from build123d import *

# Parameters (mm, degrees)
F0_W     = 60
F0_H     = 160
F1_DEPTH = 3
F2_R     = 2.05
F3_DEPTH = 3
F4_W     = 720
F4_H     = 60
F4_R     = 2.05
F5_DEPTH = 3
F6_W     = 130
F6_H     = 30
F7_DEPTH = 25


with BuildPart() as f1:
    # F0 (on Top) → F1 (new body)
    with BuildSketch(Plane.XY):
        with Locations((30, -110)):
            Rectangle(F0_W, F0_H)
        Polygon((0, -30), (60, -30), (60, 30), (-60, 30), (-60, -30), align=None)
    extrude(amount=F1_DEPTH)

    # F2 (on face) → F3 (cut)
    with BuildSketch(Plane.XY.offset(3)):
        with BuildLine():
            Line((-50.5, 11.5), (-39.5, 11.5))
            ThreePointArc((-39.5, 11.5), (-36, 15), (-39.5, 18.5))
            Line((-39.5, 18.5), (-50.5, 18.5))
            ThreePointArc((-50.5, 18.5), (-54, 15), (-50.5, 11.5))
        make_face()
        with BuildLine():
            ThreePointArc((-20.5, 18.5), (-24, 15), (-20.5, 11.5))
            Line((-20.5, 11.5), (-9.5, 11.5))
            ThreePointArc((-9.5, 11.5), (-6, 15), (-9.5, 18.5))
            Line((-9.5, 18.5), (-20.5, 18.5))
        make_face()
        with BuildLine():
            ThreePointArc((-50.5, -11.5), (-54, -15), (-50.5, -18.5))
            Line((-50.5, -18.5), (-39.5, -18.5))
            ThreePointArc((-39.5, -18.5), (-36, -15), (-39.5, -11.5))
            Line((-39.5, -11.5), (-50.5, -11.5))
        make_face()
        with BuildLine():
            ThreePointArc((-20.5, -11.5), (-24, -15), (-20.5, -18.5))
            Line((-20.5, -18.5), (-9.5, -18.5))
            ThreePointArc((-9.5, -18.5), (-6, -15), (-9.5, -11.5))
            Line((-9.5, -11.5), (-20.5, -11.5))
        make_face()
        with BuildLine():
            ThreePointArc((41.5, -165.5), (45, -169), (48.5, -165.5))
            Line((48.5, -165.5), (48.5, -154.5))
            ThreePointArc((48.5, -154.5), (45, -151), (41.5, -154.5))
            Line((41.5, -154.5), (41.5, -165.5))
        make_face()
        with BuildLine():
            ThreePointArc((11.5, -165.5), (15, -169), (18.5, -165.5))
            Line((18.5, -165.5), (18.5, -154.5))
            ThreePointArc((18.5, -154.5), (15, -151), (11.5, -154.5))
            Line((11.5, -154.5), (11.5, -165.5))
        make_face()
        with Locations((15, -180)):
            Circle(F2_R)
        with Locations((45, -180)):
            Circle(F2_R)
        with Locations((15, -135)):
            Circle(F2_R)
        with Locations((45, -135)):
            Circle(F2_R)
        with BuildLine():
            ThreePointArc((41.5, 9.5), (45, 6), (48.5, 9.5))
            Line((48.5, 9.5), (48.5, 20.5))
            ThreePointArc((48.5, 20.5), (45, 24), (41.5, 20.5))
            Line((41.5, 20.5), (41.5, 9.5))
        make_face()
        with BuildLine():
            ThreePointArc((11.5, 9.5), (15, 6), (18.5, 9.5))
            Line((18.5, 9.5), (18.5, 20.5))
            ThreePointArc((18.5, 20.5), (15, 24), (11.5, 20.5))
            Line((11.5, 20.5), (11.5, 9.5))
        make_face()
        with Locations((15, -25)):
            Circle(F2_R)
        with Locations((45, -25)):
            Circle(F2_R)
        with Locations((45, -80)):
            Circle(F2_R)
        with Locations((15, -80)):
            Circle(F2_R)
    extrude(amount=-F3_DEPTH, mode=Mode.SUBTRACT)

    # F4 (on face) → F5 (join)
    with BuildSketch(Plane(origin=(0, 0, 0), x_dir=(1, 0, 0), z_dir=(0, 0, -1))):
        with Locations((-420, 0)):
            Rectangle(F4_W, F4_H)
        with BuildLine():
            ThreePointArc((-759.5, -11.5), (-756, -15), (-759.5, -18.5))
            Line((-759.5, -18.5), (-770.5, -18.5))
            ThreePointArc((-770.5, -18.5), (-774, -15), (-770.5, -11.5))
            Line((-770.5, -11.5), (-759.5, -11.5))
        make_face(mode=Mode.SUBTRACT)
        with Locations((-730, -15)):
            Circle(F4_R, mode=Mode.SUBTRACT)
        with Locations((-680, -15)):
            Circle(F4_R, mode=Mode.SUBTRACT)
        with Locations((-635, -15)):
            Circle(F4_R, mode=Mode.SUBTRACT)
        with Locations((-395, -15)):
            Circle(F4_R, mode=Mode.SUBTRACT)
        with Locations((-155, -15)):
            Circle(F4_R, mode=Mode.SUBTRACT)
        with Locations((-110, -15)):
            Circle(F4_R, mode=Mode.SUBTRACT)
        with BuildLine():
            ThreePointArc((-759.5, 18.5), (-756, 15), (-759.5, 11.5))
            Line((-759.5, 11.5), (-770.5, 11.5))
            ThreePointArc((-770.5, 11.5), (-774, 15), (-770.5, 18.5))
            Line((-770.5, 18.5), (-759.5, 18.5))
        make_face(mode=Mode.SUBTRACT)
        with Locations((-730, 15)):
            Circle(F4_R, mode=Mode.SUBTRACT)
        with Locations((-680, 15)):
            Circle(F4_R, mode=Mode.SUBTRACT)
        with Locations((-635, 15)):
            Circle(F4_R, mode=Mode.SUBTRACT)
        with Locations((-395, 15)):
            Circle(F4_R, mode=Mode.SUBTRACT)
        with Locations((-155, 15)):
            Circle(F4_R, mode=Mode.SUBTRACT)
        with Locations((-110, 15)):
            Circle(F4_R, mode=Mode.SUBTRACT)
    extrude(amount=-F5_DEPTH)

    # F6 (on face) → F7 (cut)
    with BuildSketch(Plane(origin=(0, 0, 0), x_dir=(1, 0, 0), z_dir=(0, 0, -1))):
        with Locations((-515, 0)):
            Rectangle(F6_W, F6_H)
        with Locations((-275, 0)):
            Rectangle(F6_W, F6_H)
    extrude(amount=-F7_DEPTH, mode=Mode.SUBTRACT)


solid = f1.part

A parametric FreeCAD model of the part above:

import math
import FreeCAD as App
import Part
import Sketcher
from FreeCAD import Vector

doc = App.newDocument("Part")
params = doc.addObject("Spreadsheet::Sheet", "Params")
for row, (alias, value) in enumerate([
    ("sketch1_width", "60 mm"),
    ("sketch1_height", "160 mm"),
    ("pad1_length", "3 mm"),
    ("sketch2_diameter", "4.1 mm"),
    ("sketch2_radius", "3.5 mm"),
    ("sketch2_width", "11 mm"),
    ("pocket1_length", "3 mm"),
    ("sketch3_diameter", "4.1 mm"),
    ("sketch3_radius", "3.5 mm"),
    ("sketch3_width", "720 mm"),
    ("sketch3_width2", "11 mm"),
    ("sketch3_height", "60 mm"),
    ("pad2_length", "3 mm"),
    ("sketch4_width", "130 mm"),
    ("sketch4_height", "30 mm"),
    ("pocket2_length", "25 mm"),
], start=1):
    params.set(f"A{row}", alias)
    params.set(f"B{row}", "=" + value)
    params.setAlias(f"B{row}", alias)

body = doc.addObject("PartDesign::Body", "Body")

sketch1 = doc.addObject("Sketcher::SketchObject", "Sketch")
body.addObject(sketch1)
sketch1.AttachmentSupport = (doc.XY_Plane, [""])
sketch1.MapMode = "FlatFace"
sketch1.addGeometry([
    Part.LineSegment(Vector(0, -30, 0), Vector(0, -190, 0)),
    Part.LineSegment(Vector(0, -190, 0), Vector(60, -190, 0)),
    Part.LineSegment(Vector(60, -190, 0), Vector(60, 30, 0)),
    Part.LineSegment(Vector(60, 30, 0), Vector(-60, 30, 0)),
    Part.LineSegment(Vector(-60, 30, 0), Vector(-60, -30, 0)),
    Part.LineSegment(Vector(-60, -30, 0), Vector(0, -30, 0)),
], False)
sketch1.addConstraint([
    Sketcher.Constraint("Coincident", 0, 2, 1, 1),
    Sketcher.Constraint("Coincident", 1, 2, 2, 1),
    Sketcher.Constraint("Coincident", 2, 2, 3, 1),
    Sketcher.Constraint("Coincident", 3, 2, 4, 1),
    Sketcher.Constraint("Coincident", 4, 2, 5, 1),
    Sketcher.Constraint("Coincident", 5, 2, 0, 1),
    Sketcher.Constraint("Vertical", 0),
    Sketcher.Constraint("Horizontal", 1),
    Sketcher.Constraint("Vertical", 2),
    Sketcher.Constraint("Horizontal", 3),
    Sketcher.Constraint("Vertical", 4),
    Sketcher.Constraint("Horizontal", 5),
    Sketcher.Constraint("Symmetric", 2, 2, 4, 2, -1, 1),
    Sketcher.Constraint("PointOnObject", 0, 2, -2),
    Sketcher.Constraint("Equal", 5, 4),
    Sketcher.Constraint("DistanceX", 1, 1, 1, 2, 60.0),
    Sketcher.Constraint("DistanceY", 0, 2, 0, 1, 160.0),
])
sketch1.setExpression("Constraints[15]", "Params.sketch1_width")
sketch1.setExpression("Constraints[16]", "Params.sketch1_height")
pad1 = doc.addObject("PartDesign::Pad", "Pad")
body.addObject(pad1)
pad1.Profile = sketch1
pad1.setExpression("Length", "Params.pad1_length")

sketch2 = doc.addObject("Sketcher::SketchObject", "Sketch001")
body.addObject(sketch2)
sketch2.AttachmentSupport = (doc.XY_Plane, [""])
sketch2.MapMode = "FlatFace"
sketch2.AttachmentOffset = App.Placement(Vector(0, 0, 3), App.Rotation())
sketch2.addGeometry([
    Part.LineSegment(Vector(-50.5, 11.5, 0), Vector(-39.5, 11.5, 0)),
    Part.ArcOfCircle(Part.Circle(Vector(-39.5, 15, 0), Vector(0, 0, 1), 3.5), math.radians(-90), math.radians(90)),
    Part.LineSegment(Vector(-39.5, 18.5, 0), Vector(-50.5, 18.5, 0)),
    Part.ArcOfCircle(Part.Circle(Vector(-50.5, 15, 0), Vector(0, 0, 1), 3.5), math.radians(90), math.radians(270)),
    Part.ArcOfCircle(Part.Circle(Vector(-20.5, 15, 0), Vector(0, 0, 1), 3.5), math.radians(90), math.radians(270)),
    Part.LineSegment(Vector(-20.5, 11.5, 0), Vector(-9.5, 11.5, 0)),
    Part.ArcOfCircle(Part.Circle(Vector(-9.5, 15, 0), Vector(0, 0, 1), 3.5), math.radians(-90), math.radians(90)),
    Part.LineSegment(Vector(-9.5, 18.5, 0), Vector(-20.5, 18.5, 0)),
    Part.ArcOfCircle(Part.Circle(Vector(-50.5, -15, 0), Vector(0, 0, 1), 3.5), math.radians(90), math.radians(270)),
    Part.LineSegment(Vector(-50.5, -18.5, 0), Vector(-39.5, -18.5, 0)),
    Part.ArcOfCircle(Part.Circle(Vector(-39.5, -15, 0), Vector(0, 0, 1), 3.5), math.radians(-90), math.radians(90)),
    Part.LineSegment(Vector(-39.5, -11.5, 0), Vector(-50.5, -11.5, 0)),
    Part.ArcOfCircle(Part.Circle(Vector(-20.5, -15, 0), Vector(0, 0, 1), 3.5), math.radians(90), math.radians(270)),
    Part.LineSegment(Vector(-20.5, -18.5, 0), Vector(-9.5, -18.5, 0)),
    Part.ArcOfCircle(Part.Circle(Vector(-9.5, -15, 0), Vector(0, 0, 1), 3.5), math.radians(-90), math.radians(90)),
    Part.LineSegment(Vector(-9.5, -11.5, 0), Vector(-20.5, -11.5, 0)),
    Part.ArcOfCircle(Part.Circle(Vector(45, -165.5, 0), Vector(0, 0, 1), 3.5), math.radians(180), math.radians(360)),
    Part.LineSegment(Vector(48.5, -165.5, 0), Vector(48.5, -154.5, 0)),
    Part.ArcOfCircle(Part.Circle(Vector(45, -154.5, 0), Vector(0, 0, 1), 3.5), math.radians(0), math.radians(180)),
    Part.LineSegment(Vector(41.5, -154.5, 0), Vector(41.5, -165.5, 0)),
    Part.ArcOfCircle(Part.Circle(Vector(15, -165.5, 0), Vector(0, 0, 1), 3.5), math.radians(180), math.radians(360)),
    Part.LineSegment(Vector(18.5, -165.5, 0), Vector(18.5, -154.5, 0)),
    Part.ArcOfCircle(Part.Circle(Vector(15, -154.5, 0), Vector(0, 0, 1), 3.5), math.radians(0), math.radians(180)),
    Part.LineSegment(Vector(11.5, -154.5, 0), Vector(11.5, -165.5, 0)),
    Part.Circle(Vector(15, -180, 0), Vector(0, 0, 1), 2),
    Part.Circle(Vector(45, -180, 0), Vector(0, 0, 1), 2),
    Part.Circle(Vector(15, -135, 0), Vector(0, 0, 1), 2),
    Part.Circle(Vector(45, -135, 0), Vector(0, 0, 1), 2),
    Part.ArcOfCircle(Part.Circle(Vector(45, 9.5, 0), Vector(0, 0, 1), 3.5), math.radians(180), math.radians(360)),
    Part.LineSegment(Vector(48.5, 9.5, 0), Vector(48.5, 20.5, 0)),
    Part.ArcOfCircle(Part.Circle(Vector(45, 20.5, 0), Vector(0, 0, 1), 3.5), math.radians(0), math.radians(180)),
    Part.LineSegment(Vector(41.5, 20.5, 0), Vector(41.5, 9.5, 0)),
    Part.ArcOfCircle(Part.Circle(Vector(15, 9.5, 0), Vector(0, 0, 1), 3.5), math.radians(180), math.radians(360)),
    Part.LineSegment(Vector(18.5, 9.5, 0), Vector(18.5, 20.5, 0)),
    Part.ArcOfCircle(Part.Circle(Vector(15, 20.5, 0), Vector(0, 0, 1), 3.5), math.radians(0), math.radians(180)),
    Part.LineSegment(Vector(11.5, 20.5, 0), Vector(11.5, 9.5, 0)),
    Part.Circle(Vector(15, -25, 0), Vector(0, 0, 1), 2),
    Part.Circle(Vector(45, -25, 0), Vector(0, 0, 1), 2),
    Part.Circle(Vector(45, -80, 0), Vector(0, 0, 1), 2),
    Part.Circle(Vector(15, -80, 0), Vector(0, 0, 1), 2),
], False)
sketch2.addConstraint([
    Sketcher.Constraint("Tangent", 0, 2, 1, 1),
    Sketcher.Constraint("Tangent", 1, 2, 2, 1),
    Sketcher.Constraint("Tangent", 2, 2, 3, 1),
    Sketcher.Constraint("Tangent", 3, 2, 0, 1),
    Sketcher.Constraint("Tangent", 4, 2, 5, 1),
    Sketcher.Constraint("Tangent", 5, 2, 6, 1),
    Sketcher.Constraint("Tangent", 6, 2, 7, 1),
    Sketcher.Constraint("Tangent", 7, 2, 4, 1),
    Sketcher.Constraint("Tangent", 8, 2, 9, 1),
    Sketcher.Constraint("Tangent", 9, 2, 10, 1),
    Sketcher.Constraint("Tangent", 10, 2, 11, 1),
    Sketcher.Constraint("Tangent", 11, 2, 8, 1),
    Sketcher.Constraint("Tangent", 12, 2, 13, 1),
    Sketcher.Constraint("Tangent", 13, 2, 14, 1),
    Sketcher.Constraint("Tangent", 14, 2, 15, 1),
    Sketcher.Constraint("Tangent", 15, 2, 12, 1),
    Sketcher.Constraint("Tangent", 16, 2, 17, 1),
    Sketcher.Constraint("Tangent", 17, 2, 18, 1),
    Sketcher.Constraint("Tangent", 18, 2, 19, 1),
    Sketcher.Constraint("Tangent", 19, 2, 16, 1),
    Sketcher.Constraint("Tangent", 20, 2, 21, 1),
    Sketcher.Constraint("Tangent", 21, 2, 22, 1),
    Sketcher.Constraint("Tangent", 22, 2, 23, 1),
    Sketcher.Constraint("Tangent", 23, 2, 20, 1),
    Sketcher.Constraint("Tangent", 28, 2, 29, 1),
    Sketcher.Constraint("Tangent", 29, 2, 30, 1),
    Sketcher.Constraint("Tangent", 30, 2, 31, 1),
    Sketcher.Constraint("Tangent", 31, 2, 28, 1),
    Sketcher.Constraint("Tangent", 32, 2, 33, 1),
    Sketcher.Constraint("Tangent", 33, 2, 34, 1),
    Sketcher.Constraint("Tangent", 34, 2, 35, 1),
    Sketcher.Constraint("Tangent", 35, 2, 32, 1),
    Sketcher.Constraint("Horizontal", 0),
    Sketcher.Constraint("Horizontal", 2),
    Sketcher.Constraint("Horizontal", 5),
    Sketcher.Constraint("Horizontal", 7),
    Sketcher.Constraint("Horizontal", 9),
    Sketcher.Constraint("Horizontal", 11),
    Sketcher.Constraint("Horizontal", 13),
    Sketcher.Constraint("Horizontal", 15),
    Sketcher.Constraint("Vertical", 17),
    Sketcher.Constraint("Vertical", 19),
    Sketcher.Constraint("Vertical", 21),
    Sketcher.Constraint("Vertical", 23),
    Sketcher.Constraint("Vertical", 29),
    Sketcher.Constraint("Vertical", 31),
    Sketcher.Constraint("Vertical", 33),
    Sketcher.Constraint("Vertical", 35),
    Sketcher.Constraint("Equal", 3, 4),
    Sketcher.Constraint("Equal", 6, 8),
    Sketcher.Constraint("Equal", 10, 12),
    Sketcher.Constraint("Equal", 14, 16),
    Sketcher.Constraint("Equal", 18, 20),
    Sketcher.Constraint("Equal", 24, 25),
    Sketcher.Constraint("Equal", 25, 26),
    Sketcher.Constraint("Equal", 26, 27),
    Sketcher.Constraint("Equal", 22, 28),
    Sketcher.Constraint("Equal", 30, 32),
    Sketcher.Constraint("Equal", 27, 36),
    Sketcher.Constraint("Equal", 36, 37),
    Sketcher.Constraint("Equal", 37, 38),
    Sketcher.Constraint("Equal", 38, 39),
    Sketcher.Constraint("Symmetric", 3, 3, 8, 3, -1),
    Sketcher.Constraint("Symmetric", 4, 3, 12, 3, -1),
    Sketcher.Constraint("Horizontal", 3, 3, 4, 3),
    Sketcher.Constraint("Horizontal", 16, 3, 20, 3),
    Sketcher.Constraint("Horizontal", 18, 3, 22, 3),
    Sketcher.Constraint("Horizontal", 24, 3, 25, 3),
    Sketcher.Constraint("Horizontal", 26, 3, 27, 3),
    Sketcher.Constraint("Horizontal", 28, 3, 32, 3),
    Sketcher.Constraint("Horizontal", 30, 3, 34, 3),
    Sketcher.Constraint("Horizontal", 36, 3, 37, 3),
    Sketcher.Constraint("Horizontal", 38, 3, 39, 3),
    Sketcher.Constraint("Vertical", 1, 3, 10, 3),
    Sketcher.Constraint("Vertical", 6, 3, 14, 3),
    Sketcher.Constraint("Vertical", 22, 3, 24, 3),
    Sketcher.Constraint("Vertical", 18, 3, 25, 3),
    Sketcher.Constraint("Vertical", 24, 3, 26, 3),
    Sketcher.Constraint("Vertical", 25, 3, 27, 3),
    Sketcher.Constraint("Vertical", 27, 3, 28, 3),
    Sketcher.Constraint("Vertical", 26, 3, 32, 3),
    Sketcher.Constraint("Vertical", 34, 3, 36, 3),
    Sketcher.Constraint("Vertical", 30, 3, 37, 3),
    Sketcher.Constraint("Vertical", 37, 3, 38, 3),
    Sketcher.Constraint("Vertical", 36, 3, 39, 3),
    Sketcher.Constraint("Equal", 2, 5),
    Sketcher.Constraint("Equal", 15, 17),
    Sketcher.Constraint("Equal", 23, 29),
    Sketcher.Constraint("Diameter", 24, 4.1),
    Sketcher.Constraint("Radius", 1, 3.5),
    Sketcher.Constraint("DistanceX", 0, 1, 0, 2, 11.0),
    Sketcher.Constraint("DistanceY", -1, 1, 1, 3, 15.0),
    Sketcher.Constraint("DistanceX", -1, 1, 16, 3, 45.0),
    Sketcher.Constraint("DistanceX", -1, 1, 20, 3, 15.0),
    Sketcher.Constraint("DistanceY", 24, 3, -1, 1, 180.0),
    Sketcher.Constraint("DistanceY", 26, 3, -1, 1, 135.0),
    Sketcher.Constraint("DistanceY", 36, 3, -1, 1, 25.0),
    Sketcher.Constraint("DistanceY", 38, 3, -1, 1, 80.0),
    Sketcher.Constraint("DistanceX", 1, 3, 4, 3, 19.0),
    Sketcher.Constraint("DistanceY", 32, 3, 5, 2, 2.0),
    Sketcher.Constraint("DistanceX", 6, 2, 34, 2, 21.0),
    Sketcher.Constraint("DistanceY", 16, 3, -1, 1, 165.5),
])
sketch2.setExpression("Constraints[88]", "Params.sketch2_diameter")
sketch2.setExpression("Constraints[89]", "Params.sketch2_radius")
sketch2.setExpression("Constraints[90]", "Params.sketch2_width")
pocket1 = doc.addObject("PartDesign::Pocket", "Pocket")
body.addObject(pocket1)
pocket1.Profile = sketch2
pocket1.setExpression("Length", "Params.pocket1_length")

sketch3 = doc.addObject("Sketcher::SketchObject", "Sketch002")
body.addObject(sketch3)
sketch3.AttachmentSupport = (doc.XY_Plane, [""])
sketch3.MapMode = "FlatFace"
sketch3.addGeometry([
    Part.LineSegment(Vector(-780, -30, 0), Vector(-780, 30, 0)),
    Part.LineSegment(Vector(-780, 30, 0), Vector(-60, 30, 0)),
    Part.LineSegment(Vector(-60, 30, 0), Vector(-60, -30, 0)),
    Part.LineSegment(Vector(-60, -30, 0), Vector(-780, -30, 0)),
    Part.LineSegment(Vector(-770.5, 11.5, 0), Vector(-759.5, 11.5, 0)),
    Part.ArcOfCircle(Part.Circle(Vector(-759.5, 15, 0), Vector(0, 0, 1), 3.5), math.radians(-90), math.radians(90)),
    Part.LineSegment(Vector(-759.5, 18.5, 0), Vector(-770.5, 18.5, 0)),
    Part.ArcOfCircle(Part.Circle(Vector(-770.5, 15, 0), Vector(0, 0, 1), 3.5), math.radians(90), math.radians(270)),
    Part.Circle(Vector(-730, 15, 0), Vector(0, 0, 1), 2),
    Part.Circle(Vector(-680, 15, 0), Vector(0, 0, 1), 2),
    Part.Circle(Vector(-635, 15, 0), Vector(0, 0, 1), 2),
    Part.Circle(Vector(-395, 15, 0), Vector(0, 0, 1), 2),
    Part.Circle(Vector(-155, 15, 0), Vector(0, 0, 1), 2),
    Part.Circle(Vector(-110, 15, 0), Vector(0, 0, 1), 2),
    Part.LineSegment(Vector(-770.5, -18.5, 0), Vector(-759.5, -18.5, 0)),
    Part.ArcOfCircle(Part.Circle(Vector(-759.5, -15, 0), Vector(0, 0, 1), 3.5), math.radians(-90), math.radians(90)),
    Part.LineSegment(Vector(-759.5, -11.5, 0), Vector(-770.5, -11.5, 0)),
    Part.ArcOfCircle(Part.Circle(Vector(-770.5, -15, 0), Vector(0, 0, 1), 3.5), math.radians(90), math.radians(270)),
    Part.Circle(Vector(-730, -15, 0), Vector(0, 0, 1), 2),
    Part.Circle(Vector(-680, -15, 0), Vector(0, 0, 1), 2),
    Part.Circle(Vector(-635, -15, 0), Vector(0, 0, 1), 2),
    Part.Circle(Vector(-395, -15, 0), Vector(0, 0, 1), 2),
    Part.Circle(Vector(-155, -15, 0), Vector(0, 0, 1), 2),
    Part.Circle(Vector(-110, -15, 0), Vector(0, 0, 1), 2),
], False)
sketch3.addConstraint([
    Sketcher.Constraint("Coincident", 0, 2, 1, 1),
    Sketcher.Constraint("Coincident", 1, 2, 2, 1),
    Sketcher.Constraint("Coincident", 2, 2, 3, 1),
    Sketcher.Constraint("Coincident", 3, 2, 0, 1),
    Sketcher.Constraint("Tangent", 4, 2, 5, 1),
    Sketcher.Constraint("Tangent", 5, 2, 6, 1),
    Sketcher.Constraint("Tangent", 6, 2, 7, 1),
    Sketcher.Constraint("Tangent", 7, 2, 4, 1),
    Sketcher.Constraint("Tangent", 14, 2, 15, 1),
    Sketcher.Constraint("Tangent", 15, 2, 16, 1),
    Sketcher.Constraint("Tangent", 16, 2, 17, 1),
    Sketcher.Constraint("Tangent", 17, 2, 14, 1),
    Sketcher.Constraint("Vertical", 0),
    Sketcher.Constraint("Horizontal", 1),
    Sketcher.Constraint("Vertical", 2),
    Sketcher.Constraint("Horizontal", 3),
    Sketcher.Constraint("Horizontal", 4),
    Sketcher.Constraint("Horizontal", 6),
    Sketcher.Constraint("Horizontal", 14),
    Sketcher.Constraint("Horizontal", 16),
    Sketcher.Constraint("Equal", 8, 9),
    Sketcher.Constraint("Equal", 9, 10),
    Sketcher.Constraint("Equal", 10, 11),
    Sketcher.Constraint("Equal", 11, 12),
    Sketcher.Constraint("Equal", 12, 13),
    Sketcher.Constraint("Equal", 7, 15),
    Sketcher.Constraint("Equal", 13, 18),
    Sketcher.Constraint("Equal", 18, 19),
    Sketcher.Constraint("Equal", 19, 20),
    Sketcher.Constraint("Equal", 20, 21),
    Sketcher.Constraint("Equal", 21, 22),
    Sketcher.Constraint("Equal", 22, 23),
    Sketcher.Constraint("Symmetric", 5, 3, 15, 3, -1),
    Sketcher.Constraint("Symmetric", 8, 3, 18, 3, -1),
    Sketcher.Constraint("Symmetric", 9, 3, 19, 3, -1),
    Sketcher.Constraint("Symmetric", 10, 3, 20, 3, -1),
    Sketcher.Constraint("Symmetric", 11, 3, 21, 3, -1),
    Sketcher.Constraint("Symmetric", 12, 3, 22, 3, -1),
    Sketcher.Constraint("Symmetric", 13, 3, 23, 3, -1),
    Sketcher.Constraint("Horizontal", 7, 3, 8, 3),
    Sketcher.Constraint("Horizontal", 8, 3, 9, 3),
    Sketcher.Constraint("Horizontal", 9, 3, 10, 3),
    Sketcher.Constraint("Horizontal", 10, 3, 11, 3),
    Sketcher.Constraint("Horizontal", 11, 3, 12, 3),
    Sketcher.Constraint("Horizontal", 12, 3, 13, 3),
    Sketcher.Constraint("Vertical", 7, 3, 17, 3),
    Sketcher.Constraint("Diameter", 8, 4.1),
    Sketcher.Constraint("Radius", 5, 3.5),
    Sketcher.Constraint("DistanceX", 1, 1, 1, 2, 720.0),
    Sketcher.Constraint("DistanceX", 4, 1, 4, 2, 11.0),
    Sketcher.Constraint("DistanceY", 0, 1, 0, 2, 60.0),
    Sketcher.Constraint("DistanceY", -1, 1, 5, 3, 15.0),
    Sketcher.Constraint("DistanceX", 8, 3, -1, 1, 730.0),
    Sketcher.Constraint("DistanceX", 9, 3, -1, 1, 680.0),
    Sketcher.Constraint("DistanceX", 10, 3, -1, 1, 635.0),
    Sketcher.Constraint("DistanceX", 11, 3, -1, 1, 395.0),
    Sketcher.Constraint("DistanceX", 12, 3, -1, 1, 155.0),
    Sketcher.Constraint("DistanceX", 13, 3, -1, 1, 110.0),
    Sketcher.Constraint("DistanceX", 0, 2, -1, 1, 780.0),
    Sketcher.Constraint("DistanceY", -1, 1, 0, 2, 30.0),
    Sketcher.Constraint("DistanceX", 5, 3, -1, 1, 759.5),
])
sketch3.setExpression("Constraints[46]", "Params.sketch3_diameter")
sketch3.setExpression("Constraints[47]", "Params.sketch3_radius")
sketch3.setExpression("Constraints[48]", "Params.sketch3_width")
sketch3.setExpression("Constraints[49]", "Params.sketch3_width2")
sketch3.setExpression("Constraints[50]", "Params.sketch3_height")
pad2 = doc.addObject("PartDesign::Pad", "Pad001")
body.addObject(pad2)
pad2.Profile = sketch3
pad2.setExpression("Length", "Params.pad2_length")

sketch4 = doc.addObject("Sketcher::SketchObject", "Sketch003")
body.addObject(sketch4)
sketch4.AttachmentSupport = (doc.XY_Plane, [""])
sketch4.MapMode = "FlatFace"
sketch4.addGeometry([
    Part.LineSegment(Vector(-580, -15, 0), Vector(-580, 15, 0)),
    Part.LineSegment(Vector(-580, 15, 0), Vector(-450, 15, 0)),
    Part.LineSegment(Vector(-450, 15, 0), Vector(-450, -15, 0)),
    Part.LineSegment(Vector(-450, -15, 0), Vector(-580, -15, 0)),
    Part.LineSegment(Vector(-340, -15, 0), Vector(-340, 15, 0)),
    Part.LineSegment(Vector(-340, 15, 0), Vector(-210, 15, 0)),
    Part.LineSegment(Vector(-210, 15, 0), Vector(-210, -15, 0)),
    Part.LineSegment(Vector(-210, -15, 0), Vector(-340, -15, 0)),
], False)
sketch4.addConstraint([
    Sketcher.Constraint("Coincident", 0, 2, 1, 1),
    Sketcher.Constraint("Coincident", 1, 2, 2, 1),
    Sketcher.Constraint("Coincident", 2, 2, 3, 1),
    Sketcher.Constraint("Coincident", 3, 2, 0, 1),
    Sketcher.Constraint("Coincident", 4, 2, 5, 1),
    Sketcher.Constraint("Coincident", 5, 2, 6, 1),
    Sketcher.Constraint("Coincident", 6, 2, 7, 1),
    Sketcher.Constraint("Coincident", 7, 2, 4, 1),
    Sketcher.Constraint("Vertical", 0),
    Sketcher.Constraint("Horizontal", 1),
    Sketcher.Constraint("Vertical", 2),
    Sketcher.Constraint("Horizontal", 3),
    Sketcher.Constraint("Vertical", 4),
    Sketcher.Constraint("Horizontal", 5),
    Sketcher.Constraint("Vertical", 6),
    Sketcher.Constraint("Horizontal", 7),
    Sketcher.Constraint("Horizontal", 1, 2, 4, 2),
    Sketcher.Constraint("Horizontal", 3, 2, 6, 2),
    Sketcher.Constraint("Equal", 3, 5),
    Sketcher.Constraint("DistanceX", 1, 1, 1, 2, 130.0),
    Sketcher.Constraint("DistanceY", 0, 1, 0, 2, 30.0),
    Sketcher.Constraint("DistanceX", 0, 2, -1, 1, 580.0),
    Sketcher.Constraint("DistanceY", -1, 1, 0, 2, 15.0),
    Sketcher.Constraint("DistanceX", 4, 2, -1, 1, 340.0),
])
sketch4.setExpression("Constraints[19]", "Params.sketch4_width")
sketch4.setExpression("Constraints[20]", "Params.sketch4_height")
pocket2 = doc.addObject("PartDesign::Pocket", "Pocket001")
body.addObject(pocket2)
pocket2.Profile = sketch4
pocket2.setExpression("Length", "Params.pocket2_length")
pocket2.Reversed = True

doc.recompute()
